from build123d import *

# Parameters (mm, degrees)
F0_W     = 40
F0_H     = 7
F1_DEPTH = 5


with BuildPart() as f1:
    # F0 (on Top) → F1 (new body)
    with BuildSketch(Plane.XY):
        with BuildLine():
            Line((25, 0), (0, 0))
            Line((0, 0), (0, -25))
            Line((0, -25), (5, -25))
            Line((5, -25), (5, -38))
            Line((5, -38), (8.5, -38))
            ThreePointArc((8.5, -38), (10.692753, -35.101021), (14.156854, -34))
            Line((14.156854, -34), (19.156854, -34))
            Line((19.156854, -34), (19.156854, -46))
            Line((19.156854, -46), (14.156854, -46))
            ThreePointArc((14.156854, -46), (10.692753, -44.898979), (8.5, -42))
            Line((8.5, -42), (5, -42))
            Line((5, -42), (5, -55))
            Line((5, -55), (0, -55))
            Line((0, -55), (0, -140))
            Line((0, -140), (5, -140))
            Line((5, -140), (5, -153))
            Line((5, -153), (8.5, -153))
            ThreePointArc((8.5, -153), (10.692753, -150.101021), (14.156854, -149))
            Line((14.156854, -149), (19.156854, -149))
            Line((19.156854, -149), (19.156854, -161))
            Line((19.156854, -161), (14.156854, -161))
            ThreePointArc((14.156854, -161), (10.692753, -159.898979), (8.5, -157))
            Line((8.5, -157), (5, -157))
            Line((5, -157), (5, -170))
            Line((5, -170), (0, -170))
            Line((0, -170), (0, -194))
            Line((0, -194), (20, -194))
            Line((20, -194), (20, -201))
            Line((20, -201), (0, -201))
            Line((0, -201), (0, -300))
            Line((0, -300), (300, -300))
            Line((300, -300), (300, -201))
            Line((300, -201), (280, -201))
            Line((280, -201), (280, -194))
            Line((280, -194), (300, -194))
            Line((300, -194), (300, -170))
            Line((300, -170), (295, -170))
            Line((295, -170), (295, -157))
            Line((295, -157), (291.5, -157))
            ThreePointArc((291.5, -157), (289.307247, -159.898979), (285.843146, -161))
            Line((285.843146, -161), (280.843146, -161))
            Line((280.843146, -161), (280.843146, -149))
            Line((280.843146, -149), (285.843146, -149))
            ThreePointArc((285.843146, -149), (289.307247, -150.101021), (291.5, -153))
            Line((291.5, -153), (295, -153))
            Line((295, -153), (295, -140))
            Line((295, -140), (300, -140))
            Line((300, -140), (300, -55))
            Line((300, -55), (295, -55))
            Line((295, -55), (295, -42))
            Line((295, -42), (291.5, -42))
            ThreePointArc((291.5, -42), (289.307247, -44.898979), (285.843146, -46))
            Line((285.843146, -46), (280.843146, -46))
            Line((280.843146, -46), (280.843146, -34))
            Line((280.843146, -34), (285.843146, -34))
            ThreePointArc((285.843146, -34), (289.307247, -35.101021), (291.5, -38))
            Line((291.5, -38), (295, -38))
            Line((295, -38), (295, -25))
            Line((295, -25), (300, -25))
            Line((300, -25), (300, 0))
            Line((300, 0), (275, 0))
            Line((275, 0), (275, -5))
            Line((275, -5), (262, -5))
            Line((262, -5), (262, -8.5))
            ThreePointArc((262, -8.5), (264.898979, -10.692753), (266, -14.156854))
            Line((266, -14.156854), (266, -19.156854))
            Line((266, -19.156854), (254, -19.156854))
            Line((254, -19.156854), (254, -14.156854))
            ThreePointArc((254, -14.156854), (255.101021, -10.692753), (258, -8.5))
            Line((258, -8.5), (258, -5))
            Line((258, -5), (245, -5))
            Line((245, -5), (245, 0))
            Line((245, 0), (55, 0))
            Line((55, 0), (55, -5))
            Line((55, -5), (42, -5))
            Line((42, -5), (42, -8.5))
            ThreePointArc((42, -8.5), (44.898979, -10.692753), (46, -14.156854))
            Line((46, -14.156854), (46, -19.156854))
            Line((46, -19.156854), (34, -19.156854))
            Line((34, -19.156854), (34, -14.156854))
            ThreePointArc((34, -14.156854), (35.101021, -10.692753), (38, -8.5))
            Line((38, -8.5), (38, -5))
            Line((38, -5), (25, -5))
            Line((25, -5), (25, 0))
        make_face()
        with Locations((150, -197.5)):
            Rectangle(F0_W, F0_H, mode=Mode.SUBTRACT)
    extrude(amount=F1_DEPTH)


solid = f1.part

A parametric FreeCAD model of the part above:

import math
import FreeCAD as App
import Part
import Sketcher
from FreeCAD import Vector


def add_polygon(sketch, points):
    """Adds a closed chain of lines whose ends are joined by coincident constraints."""
    first, n = sketch.GeometryCount, len(points)
    for a, b in zip(points, points[1:] + points[:1]):
        sketch.addGeometry(Part.LineSegment(App.Vector(*a, 0), App.Vector(*b, 0)), False)
    for i in range(n):
        sketch.addConstraint(Sketcher.Constraint("Coincident", first + i, 2, first + (i + 1) % n, 1))

doc = App.newDocument("Part")
body = doc.addObject("PartDesign::Body", "Body")

sketch1 = doc.addObject("Sketcher::SketchObject", "Sketch")
body.addObject(sketch1)
sketch1.AttachmentSupport = (doc.XY_Plane, [""])
sketch1.MapMode = "FlatFace"
sketch1.addGeometry(Part.LineSegment(Vector(25, 0, 0), Vector(0, 0, 0)), False)
sketch1.addGeometry(Part.LineSegment(Vector(0, 0, 0), Vector(0, -25, 0)), False)
sketch1.addGeometry(Part.LineSegment(Vector(0, -25, 0), Vector(5, -25, 0)), False)
sketch1.addGeometry(Part.LineSegment(Vector(5, -25, 0), Vector(5, -38, 0)), False)
sketch1.addGeometry(Part.LineSegment(Vector(5, -38, 0), Vector(8.5, -38, 0)), False)
sketch1.addGeometry(Part.ArcOfCircle(Part.Circle(Vector(14.156856, -40.000003, 0), Vector(0, 0, 1), 6.000003), math.radians(90.000021), math.radians(160.528761)), False)
sketch1.addGeometry(Part.LineSegment(Vector(14.156854, -34, 0), Vector(19.156854, -34, 0)), False)
sketch1.addGeometry(Part.LineSegment(Vector(19.156854, -34, 0), Vector(19.156854, -46, 0)), False)
sketch1.addGeometry(Part.LineSegment(Vector(19.156854, -46, 0), Vector(14.156854, -46, 0)), False)
sketch1.addGeometry(Part.ArcOfCircle(Part.Circle(Vector(14.156856, -39.999997, 0), Vector(0, 0, 1), 6.000003), math.radians(-160.528761), math.radians(-90.000021)), False)
sketch1.addGeometry(Part.LineSegment(Vector(8.5, -42, 0), Vector(5, -42, 0)), False)
sketch1.addGeometry(Part.LineSegment(Vector(5, -42, 0), Vector(5, -55, 0)), False)
sketch1.addGeometry(Part.LineSegment(Vector(5, -55, 0), Vector(0, -55, 0)), False)
sketch1.addGeometry(Part.LineSegment(Vector(0, -55, 0), Vector(0, -140, 0)), False)
sketch1.addGeometry(Part.LineSegment(Vector(0, -140, 0), Vector(5, -140, 0)), False)
sketch1.addGeometry(Part.LineSegment(Vector(5, -140, 0), Vector(5, -153, 0)), False)
sketch1.addGeometry(Part.LineSegment(Vector(5, -153, 0), Vector(8.5, -153, 0)), False)
sketch1.addGeometry(Part.ArcOfCircle(Part.Circle(Vector(14.156856, -155.000003, 0), Vector(0, 0, 1), 6.000003), math.radians(90.000021), math.radians(160.528761)), False)
sketch1.addGeometry(Part.LineSegment(Vector(14.156854, -149, 0), Vector(19.156854, -149, 0)), False)
sketch1.addGeometry(Part.LineSegment(Vector(19.156854, -149, 0), Vector(19.156854, -161, 0)), False)
sketch1.addGeometry(Part.LineSegment(Vector(19.156854, -161, 0), Vector(14.156854, -161, 0)), False)
sketch1.addGeometry(Part.ArcOfCircle(Part.Circle(Vector(14.156856, -154.999997, 0), Vector(0, 0, 1), 6.000003), math.radians(-160.528761), math.radians(-90.000021)), False)
sketch1.addGeometry(Part.LineSegment(Vector(8.5, -157, 0), Vector(5, -157, 0)), False)
sketch1.addGeometry(Part.LineSegment(Vector(5, -157, 0), Vector(5, -170, 0)), False)
sketch1.addGeometry(Part.LineSegment(Vector(5, -170, 0), Vector(0, -170, 0)), False)
sketch1.addGeometry(Part.LineSegment(Vector(0, -170, 0), Vector(0, -194, 0)), False)
sketch1.addGeometry(Part.LineSegment(Vector(0, -194, 0), Vector(20, -194, 0)), False)
sketch1.addGeometry(Part.LineSegment(Vector(20, -194, 0), Vector(20, -201, 0)), False)
sketch1.addGeometry(Part.LineSegment(Vector(20, -201, 0), Vector(0, -201, 0)), False)
sketch1.addGeometry(Part.LineSegment(Vector(0, -201, 0), Vector(0, -300, 0)), False)
sketch1.addGeometry(Part.LineSegment(Vector(0, -300, 0), Vector(300, -300, 0)), False)
sketch1.addGeometry(Part.LineSegment(Vector(300, -300, 0), Vector(300, -201, 0)), False)
sketch1.addGeometry(Part.LineSegment(Vector(300, -201, 0), Vector(280, -201, 0)), False)
sketch1.addGeometry(Part.LineSegment(Vector(280, -201, 0), Vector(280, -194, 0)), False)
sketch1.addGeometry(Part.LineSegment(Vector(280, -194, 0), Vector(300, -194, 0)), False)
sketch1.addGeometry(Part.LineSegment(Vector(300, -194, 0), Vector(300, -170, 0)), False)
sketch1.addGeometry(Part.LineSegment(Vector(300, -170, 0), Vector(295, -170, 0)), False)
sketch1.addGeometry(Part.LineSegment(Vector(295, -170, 0), Vector(295, -157, 0)), False)
sketch1.addGeometry(Part.LineSegment(Vector(295, -157, 0), Vector(291.5, -157, 0)), False)
sketch1.addGeometry(Part.ArcOfCircle(Part.Circle(Vector(285.843144, -154.999997, 0), Vector(0, 0, 1), 6.000003), math.radians(-89.999979), math.radians(-19.471239)), False)
sketch1.addGeometry(Part.LineSegment(Vector(285.843146, -161, 0), Vector(280.843146, -161, 0)), False)
sketch1.addGeometry(Part.LineSegment(Vector(280.843146, -161, 0), Vector(280.843146, -149, 0)), False)
sketch1.addGeometry(Part.LineSegment(Vector(280.843146, -149, 0), Vector(285.843146, -149, 0)), False)
sketch1.addGeometry(Part.ArcOfCircle(Part.Circle(Vector(285.843144, -155.000003, 0), Vector(0, 0, 1), 6.000003), math.radians(19.471239), math.radians(89.999979)), False)
sketch1.addGeometry(Part.LineSegment(Vector(291.5, -153, 0), Vector(295, -153, 0)), False)
sketch1.addGeometry(Part.LineSegment(Vector(295, -153, 0), Vector(295, -140, 0)), False)
sketch1.addGeometry(Part.LineSegment(Vector(295, -140, 0), Vector(300, -140, 0)), False)
sketch1.addGeometry(Part.LineSegment(Vector(300, -140, 0), Vector(300, -55, 0)), False)
sketch1.addGeometry(Part.LineSegment(Vector(300, -55, 0), Vector(295, -55, 0)), False)
sketch1.addGeometry(Part.LineSegment(Vector(295, -55, 0), Vector(295, -42, 0)), False)
sketch1.addGeometry(Part.LineSegment(Vector(295, -42, 0), Vector(291.5, -42, 0)), False)
sketch1.addGeometry(Part.ArcOfCircle(Part.Circle(Vector(285.843144, -39.999997, 0), Vector(0, 0, 1), 6.000003), math.radians(-89.999979), math.radians(-19.471239)), False)
sketch1.addGeometry(Part.LineSegment(Vector(285.843146, -46, 0), Vector(280.843146, -46, 0)), False)
sketch1.addGeometry(Part.LineSegment(Vector(280.843146, -46, 0), Vector(280.843146, -34, 0)), False)
sketch1.addGeometry(Part.LineSegment(Vector(280.843146, -34, 0), Vector(285.843146, -34, 0)), False)
sketch1.addGeometry(Part.ArcOfCircle(Part.Circle(Vector(285.843144, -40.000003, 0), Vector(0, 0, 1), 6.000003), math.radians(19.471239), math.radians(89.999979)), False)
sketch1.addGeometry(Part.LineSegment(Vector(291.5, -38, 0), Vector(295, -38, 0)), False)
sketch1.addGeometry(Part.LineSegment(Vector(295, -38, 0), Vector(295, -25, 0)), False)
sketch1.addGeometry(Part.LineSegment(Vector(295, -25, 0), Vector(300, -25, 0)), False)
sketch1.addGeometry(Part.LineSegment(Vector(300, -25, 0), Vector(300, 0, 0)), False)
sketch1.addGeometry(Part.LineSegment(Vector(300, 0, 0), Vector(275, 0, 0)), False)
sketch1.addGeometry(Part.LineSegment(Vector(275, 0, 0), Vector(275, -5, 0)), False)
sketch1.addGeometry(Part.LineSegment(Vector(275, -5, 0), Vector(262, -5, 0)), False)
sketch1.addGeometry(Part.LineSegment(Vector(262, -5, 0), Vector(262, -8.5, 0)), False)
sketch1.addGeometry(Part.ArcOfCircle(Part.Circle(Vector(259.999997, -14.156856, 0), Vector(0, 0, 1), 6.000003), math.radians(0.000021), math.radians(70.528761)), False)
sketch1.addGeometry(Part.LineSegment(Vector(266, -14.156854, 0), Vector(266, -19.156854, 0)), False)
sketch1.addGeometry(Part.LineSegment(Vector(266, -19.156854, 0), Vector(254, -19.156854, 0)), False)
sketch1.addGeometry(Part.LineSegment(Vector(254, -19.156854, 0), Vector(254, -14.156854, 0)), False)
sketch1.addGeometry(Part.ArcOfCircle(Part.Circle(Vector(260.000003, -14.156856, 0), Vector(0, 0, 1), 6.000003), math.radians(109.471239), math.radians(179.999979)), False)
sketch1.addGeometry(Part.LineSegment(Vector(258, -8.5, 0), Vector(258, -5, 0)), False)
sketch1.addGeometry(Part.LineSegment(Vector(258, -5, 0), Vector(245, -5, 0)), False)
sketch1.addGeometry(Part.LineSegment(Vector(245, -5, 0), Vector(245, 0, 0)), False)
sketch1.addGeometry(Part.LineSegment(Vector(245, 0, 0), Vector(55, 0, 0)), False)
sketch1.addGeometry(Part.LineSegment(Vector(55, 0, 0), Vector(55, -5, 0)), False)
sketch1.addGeometry(Part.LineSegment(Vector(55, -5, 0), Vector(42, -5, 0)), False)
sketch1.addGeometry(Part.LineSegment(Vector(42, -5, 0), Vector(42, -8.5, 0)), False)
sketch1.addGeometry(Part.ArcOfCircle(Part.Circle(Vector(39.999997, -14.156856, 0), Vector(0, 0, 1), 6.000003), math.radians(0.000021), math.radians(70.528761)), False)
sketch1.addGeometry(Part.LineSegment(Vector(46, -14.156854, 0), Vector(46, -19.156854, 0)), False)
sketch1.addGeometry(Part.LineSegment(Vector(46, -19.156854, 0), Vector(34, -19.156854, 0)), False)
sketch1.addGeometry(Part.LineSegment(Vector(34, -19.156854, 0), Vector(34, -14.156854, 0)), False)
sketch1.addGeometry(Part.ArcOfCircle(Part.Circle(Vector(40.000003, -14.156856, 0), Vector(0, 0, 1), 6.000003), math.radians(109.471239), math.radians(179.999979)), False)
sketch1.addGeometry(Part.LineSegment(Vector(38, -8.5, 0), Vector(38, -5, 0)), False)
sketch1.addGeometry(Part.LineSegment(Vector(38, -5, 0), Vector(25, -5, 0)), False)
sketch1.addGeometry(Part.LineSegment(Vector(25, -5, 0), Vector(25, 0, 0)), False)
add_polygon(sketch1, [(170, -201), (130, -201), (130, -194), (170, -194)])
sketch1.addConstraint(Sketcher.Constraint("Coincident", 0, 2, 1, 1))
sketch1.addConstraint(Sketcher.Constraint("Coincident", 1, 2, 2, 1))
sketch1.addConstraint(Sketcher.Constraint("Coincident", 2, 2, 3, 1))
sketch1.addConstraint(Sketcher.Constraint("Coincident", 3, 2, 4, 1))
sketch1.addConstraint(Sketcher.Constraint("Coincident", 4, 2, 5, 2))
sketch1.addConstraint(Sketcher.Constraint("Tangent", 5, 1, 6, 1))
sketch1.addConstraint(Sketcher.Constraint("Coincident", 6, 2, 7, 1))
sketch1.addConstraint(Sketcher.Constraint("Coincident", 7, 2, 8, 1))
sketch1.addConstraint(Sketcher.Constraint("Tangent", 8, 2, 9, 2))
sketch1.addConstraint(Sketcher.Constraint("Coincident", 9, 1, 10, 1))
sketch1.addConstraint(Sketcher.Constraint("Coincident", 10, 2, 11, 1))
sketch1.addConstraint(Sketcher.Constraint("Coincident", 11, 2, 12, 1))
sketch1.addConstraint(Sketcher.Constraint("Coincident", 12, 2, 13, 1))
sketch1.addConstraint(Sketcher.Constraint("Coincident", 13, 2, 14, 1))
sketch1.addConstraint(Sketcher.Constraint("Coincident", 14, 2, 15, 1))
sketch1.addConstraint(Sketcher.Constraint("Coincident", 15, 2, 16, 1))
sketch1.addConstraint(Sketcher.Constraint("Coincident", 16, 2, 17, 2))
sketch1.addConstraint(Sketcher.Constraint("Tangent", 17, 1, 18, 1))
sketch1.addConstraint(Sketcher.Constraint("Coincident", 18, 2, 19, 1))
sketch1.addConstraint(Sketcher.Constraint("Coincident", 19, 2, 20, 1))
sketch1.addConstraint(Sketcher.Constraint("Tangent", 20, 2, 21, 2))
sketch1.addConstraint(Sketcher.Constraint("Coincident", 21, 1, 22, 1))
sketch1.addConstraint(Sketcher.Constraint("Coincident", 22, 2, 23, 1))
sketch1.addConstraint(Sketcher.Constraint("Coincident", 23, 2, 24, 1))
sketch1.addConstraint(Sketcher.Constraint("Coincident", 24, 2, 25, 1))
sketch1.addConstraint(Sketcher.Constraint("Coincident", 25, 2, 26, 1))
sketch1.addConstraint(Sketcher.Constraint("Coincident", 26, 2, 27, 1))
sketch1.addConstraint(Sketcher.Constraint("Coincident", 27, 2, 28, 1))
sketch1.addConstraint(Sketcher.Constraint("Coincident", 28, 2, 29, 1))
sketch1.addConstraint(Sketcher.Constraint("Coincident", 29, 2, 30, 1))
sketch1.addConstraint(Sketcher.Constraint("Coincident", 30, 2, 31, 1))
sketch1.addConstraint(Sketcher.Constraint("Coincident", 31, 2, 32, 1))
sketch1.addConstraint(Sketcher.Constraint("Coincident", 32, 2, 33, 1))
sketch1.addConstraint(Sketcher.Constraint("Coincident", 33, 2, 34, 1))
sketch1.addConstraint(Sketcher.Constraint("Coincident", 34, 2, 35, 1))
sketch1.addConstraint(Sketcher.Constraint("Coincident", 35, 2, 36, 1))
sketch1.addConstraint(Sketcher.Constraint("Coincident", 36, 2, 37, 1))
sketch1.addConstraint(Sketcher.Constraint("Coincident", 37, 2, 38, 1))
sketch1.addConstraint(Sketcher.Constraint("Coincident", 38, 2, 39, 2))
sketch1.addConstraint(Sketcher.Constraint("Tangent", 39, 1, 40, 1))
sketch1.addConstraint(Sketcher.Constraint("Coincident", 40, 2, 41, 1))
sketch1.addConstraint(Sketcher.Constraint("Coincident", 41, 2, 42, 1))
sketch1.addConstraint(Sketcher.Constraint("Tangent", 42, 2, 43, 2))
sketch1.addConstraint(Sketcher.Constraint("Coincident", 43, 1, 44, 1))
sketch1.addConstraint(Sketcher.Constraint("Coincident", 44, 2, 45, 1))
sketch1.addConstraint(Sketcher.Constraint("Coincident", 45, 2, 46, 1))
sketch1.addConstraint(Sketcher.Constraint("Coincident", 46, 2, 47, 1))
sketch1.addConstraint(Sketcher.Constraint("Coincident", 47, 2, 48, 1))
sketch1.addConstraint(Sketcher.Constraint("Coincident", 48, 2, 49, 1))
sketch1.addConstraint(Sketcher.Constraint("Coincident", 49, 2, 50, 1))
sketch1.addConstraint(Sketcher.Constraint("Coincident", 50, 2, 51, 2))
sketch1.addConstraint(Sketcher.Constraint("Tangent", 51, 1, 52, 1))
sketch1.addConstraint(Sketcher.Constraint("Coincident", 52, 2, 53, 1))
sketch1.addConstraint(Sketcher.Constraint("Coincident", 53, 2, 54, 1))
sketch1.addConstraint(Sketcher.Constraint("Tangent", 54, 2, 55, 2))
sketch1.addConstraint(Sketcher.Constraint("Coincident", 55, 1, 56, 1))
sketch1.addConstraint(Sketcher.Constraint("Coincident", 56, 2, 57, 1))
sketch1.addConstraint(Sketcher.Constraint("Coincident", 57, 2, 58, 1))
sketch1.addConstraint(Sketcher.Constraint("Coincident", 58, 2, 59, 1))
sketch1.addConstraint(Sketcher.Constraint("Coincident", 59, 2, 60, 1))
sketch1.addConstraint(Sketcher.Constraint("Coincident", 60, 2, 61, 1))
sketch1.addConstraint(Sketcher.Constraint("Coincident", 61, 2, 62, 1))
sketch1.addConstraint(Sketcher.Constraint("Coincident", 62, 2, 63, 1))
sketch1.addConstraint(Sketcher.Constraint("Coincident", 63, 2, 64, 2))
sketch1.addConstraint(Sketcher.Constraint("Tangent", 64, 1, 65, 1))
sketch1.addConstraint(Sketcher.Constraint("Coincident", 65, 2, 66, 1))
sketch1.addConstraint(Sketcher.Constraint("Coincident", 66, 2, 67, 1))
sketch1.addConstraint(Sketcher.Constraint("Tangent", 67, 2, 68, 2))
sketch1.addConstraint(Sketcher.Constraint("Coincident", 68, 1, 69, 1))
sketch1.addConstraint(Sketcher.Constraint("Coincident", 69, 2, 70, 1))
sketch1.addConstraint(Sketcher.Constraint("Coincident", 70, 2, 71, 1))
sketch1.addConstraint(Sketcher.Constraint("Coincident", 71, 2, 72, 1))
sketch1.addConstraint(Sketcher.Constraint("Coincident", 72, 2, 73, 1))
sketch1.addConstraint(Sketcher.Constraint("Coincident", 73, 2, 74, 1))
sketch1.addConstraint(Sketcher.Constraint("Coincident", 74, 2, 75, 1))
sketch1.addConstraint(Sketcher.Constraint("Coincident", 75, 2, 76, 2))
sketch1.addConstraint(Sketcher.Constraint("Tangent", 76, 1, 77, 1))
sketch1.addConstraint(Sketcher.Constraint("Coincident", 77, 2, 78, 1))
sketch1.addConstraint(Sketcher.Constraint("Coincident", 78, 2, 79, 1))
sketch1.addConstraint(Sketcher.Constraint("Tangent", 79, 2, 80, 2))
sketch1.addConstraint(Sketcher.Constraint("Coincident", 80, 1, 81, 1))
sketch1.addConstraint(Sketcher.Constraint("Coincident", 81, 2, 82, 1))
sketch1.addConstraint(Sketcher.Constraint("Coincident", 82, 2, 83, 1))
sketch1.addConstraint(Sketcher.Constraint("Coincident", 83, 2, 0, 1))
sketch1.addConstraint(Sketcher.Constraint("Horizontal", 0))
sketch1.addConstraint(Sketcher.Constraint("Vertical", 1))
sketch1.addConstraint(Sketcher.Constraint("Horizontal", 2))
sketch1.addConstraint(Sketcher.Constraint("Vertical", 3))
sketch1.addConstraint(Sketcher.Constraint("Horizontal", 4))
sketch1.addConstraint(Sketcher.Constraint("Horizontal", 6))
sketch1.addConstraint(Sketcher.Constraint("Vertical", 7))
sketch1.addConstraint(Sketcher.Constraint("Horizontal", 8))
sketch1.addConstraint(Sketcher.Constraint("Horizontal", 10))
sketch1.addConstraint(Sketcher.Constraint("Vertical", 11))
sketch1.addConstraint(Sketcher.Constraint("Horizontal", 12))
sketch1.addConstraint(Sketcher.Constraint("Vertical", 13))
sketch1.addConstraint(Sketcher.Constraint("Horizontal", 14))
sketch1.addConstraint(Sketcher.Constraint("Vertical", 15))
sketch1.addConstraint(Sketcher.Constraint("Horizontal", 16))
sketch1.addConstraint(Sketcher.Constraint("Horizontal", 18))
sketch1.addConstraint(Sketcher.Constraint("Vertical", 19))
sketch1.addConstraint(Sketcher.Constraint("Horizontal", 20))
sketch1.addConstraint(Sketcher.Constraint("Horizontal", 22))
sketch1.addConstraint(Sketcher.Constraint("Vertical", 23))
sketch1.addConstraint(Sketcher.Constraint("Horizontal", 24))
sketch1.addConstraint(Sketcher.Constraint("Vertical", 25))
sketch1.addConstraint(Sketcher.Constraint("Horizontal", 26))
sketch1.addConstraint(Sketcher.Constraint("Vertical", 27))
sketch1.addConstraint(Sketcher.Constraint("Horizontal", 28))
sketch1.addConstraint(Sketcher.Constraint("Vertical", 29))
sketch1.addConstraint(Sketcher.Constraint("Horizontal", 30))
sketch1.addConstraint(Sketcher.Constraint("Vertical", 31))
sketch1.addConstraint(Sketcher.Constraint("Horizontal", 32))
sketch1.addConstraint(Sketcher.Constraint("Vertical", 33))
sketch1.addConstraint(Sketcher.Constraint("Horizontal", 34))
sketch1.addConstraint(Sketcher.Constraint("Vertical", 35))
sketch1.addConstraint(Sketcher.Constraint("Horizontal", 36))
sketch1.addConstraint(Sketcher.Constraint("Vertical", 37))
sketch1.addConstraint(Sketcher.Constraint("Horizontal", 38))
sketch1.addConstraint(Sketcher.Constraint("Horizontal", 40))
sketch1.addConstraint(Sketcher.Constraint("Vertical", 41))
sketch1.addConstraint(Sketcher.Constraint("Horizontal", 42))
sketch1.addConstraint(Sketcher.Constraint("Horizontal", 44))
sketch1.addConstraint(Sketcher.Constraint("Vertical", 45))
sketch1.addConstraint(Sketcher.Constraint("Horizontal", 46))
sketch1.addConstraint(Sketcher.Constraint("Vertical", 47))
sketch1.addConstraint(Sketcher.Constraint("Horizontal", 48))
sketch1.addConstraint(Sketcher.Constraint("Vertical", 49))
sketch1.addConstraint(Sketcher.Constraint("Horizontal", 50))
sketch1.addConstraint(Sketcher.Constraint("Horizontal", 52))
sketch1.addConstraint(Sketcher.Constraint("Vertical", 53))
sketch1.addConstraint(Sketcher.Constraint("Horizontal", 54))
sketch1.addConstraint(Sketcher.Constraint("Horizontal", 56))
sketch1.addConstraint(Sketcher.Constraint("Vertical", 57))
sketch1.addConstraint(Sketcher.Constraint("Horizontal", 58))
sketch1.addConstraint(Sketcher.Constraint("Vertical", 59))
sketch1.addConstraint(Sketcher.Constraint("Horizontal", 60))
sketch1.addConstraint(Sketcher.Constraint("Vertical", 61))
sketch1.addConstraint(Sketcher.Constraint("Horizontal", 62))
sketch1.addConstraint(Sketcher.Constraint("Vertical", 63))
sketch1.addConstraint(Sketcher.Constraint("Vertical", 65))
sketch1.addConstraint(Sketcher.Constraint("Horizontal", 66))
sketch1.addConstraint(Sketcher.Constraint("Vertical", 67))
sketch1.addConstraint(Sketcher.Constraint("Vertical", 69))
sketch1.addConstraint(Sketcher.Constraint("Horizontal", 70))
sketch1.addConstraint(Sketcher.Constraint("Vertical", 71))
sketch1.addConstraint(Sketcher.Constraint("Horizontal", 72))
sketch1.addConstraint(Sketcher.Constraint("Vertical", 73))
sketch1.addConstraint(Sketcher.Constraint("Horizontal", 74))
sketch1.addConstraint(Sketcher.Constraint("Vertical", 75))
sketch1.addConstraint(Sketcher.Constraint("Vertical", 77))
sketch1.addConstraint(Sketcher.Constraint("Horizontal", 78))
sketch1.addConstraint(Sketcher.Constraint("Vertical", 79))
sketch1.addConstraint(Sketcher.Constraint("Vertical", 81))
sketch1.addConstraint(Sketcher.Constraint("Horizontal", 82))
sketch1.addConstraint(Sketcher.Constraint("Vertical", 83))
sketch1.addConstraint(Sketcher.Constraint("Horizontal", 84))
sketch1.addConstraint(Sketcher.Constraint("Vertical", 85))
sketch1.addConstraint(Sketcher.Constraint("Horizontal", 86))
sketch1.addConstraint(Sketcher.Constraint("Vertical", 87))
sketch1.addConstraint(Sketcher.Constraint("Coincident", 0, 2, -1, 1))
sketch1.addConstraint(Sketcher.Constraint("Coincident", 9, 3, 5, 3))
sketch1.addConstraint(Sketcher.Constraint("Coincident", 21, 3, 17, 3))
sketch1.addConstraint(Sketcher.Constraint("Coincident", 43, 3, 39, 3))
sketch1.addConstraint(Sketcher.Constraint("Coincident", 55, 3, 51, 3))
sketch1.addConstraint(Sketcher.Constraint("Coincident", 68, 3, 64, 3))
sketch1.addConstraint(Sketcher.Constraint("Coincident", 80, 3, 76, 3))
sketch1.addConstraint(Sketcher.Constraint("Equal", 5, 9))
sketch1.addConstraint(Sketcher.Constraint("Equal", 9, 17))
sketch1.addConstraint(Sketcher.Constraint("Equal", 17, 21))
sketch1.addConstraint(Sketcher.Constraint("Equal", 21, 39))
sketch1.addConstraint(Sketcher.Constraint("Equal", 39, 43))
sketch1.addConstraint(Sketcher.Constraint("Equal", 43, 51))
sketch1.addConstraint(Sketcher.Constraint("Equal", 51, 55))
sketch1.addConstraint(Sketcher.Constraint("Equal", 55, 64))
sketch1.addConstraint(Sketcher.Constraint("Equal", 64, 68))
sketch1.addConstraint(Sketcher.Constraint("Equal", 68, 76))
sketch1.addConstraint(Sketcher.Constraint("Equal", 76, 80))
sketch1.addConstraint(Sketcher.Constraint("PointOnObject", 12, 2, -2))
sketch1.addConstraint(Sketcher.Constraint("PointOnObject", 24, 2, -2))
sketch1.addConstraint(Sketcher.Constraint("PointOnObject", 28, 2, -2))
sketch1.addConstraint(Sketcher.Constraint("PointOnObject", 59, 2, -1))
sketch1.addConstraint(Sketcher.Constraint("PointOnObject", 71, 2, -1))
sketch1.addConstraint(Sketcher.Constraint("Horizontal", 21, 3, 39, 3))
sketch1.addConstraint(Sketcher.Constraint("Horizontal", 9, 3, 51, 3))
sketch1.addConstraint(Sketcher.Constraint("Horizontal", 68, 3, 76, 3))
sketch1.addConstraint(Sketcher.Constraint("Horizontal", 28, 2, 31, 2))
sketch1.addConstraint(Sketcher.Constraint("Horizontal", 26, 2, 33, 2))
sketch1.addConstraint(Sketcher.Constraint("Horizontal", 24, 2, 35, 2))
sketch1.addConstraint(Sketcher.Constraint("Horizontal", 22, 2, 37, 2))
sketch1.addConstraint(Sketcher.Constraint("Horizontal", 16, 2, 43, 1))
sketch1.addConstraint(Sketcher.Constraint("Horizontal", 14, 2, 45, 2))
sketch1.addConstraint(Sketcher.Constraint("Horizontal", 12, 2, 47, 2))
sketch1.addConstraint(Sketcher.Constraint("Horizontal", 10, 2, 49, 2))
sketch1.addConstraint(Sketcher.Constraint("Horizontal", 4, 2, 55, 1))
sketch1.addConstraint(Sketcher.Constraint("Horizontal", 2, 2, 57, 2))
sketch1.addConstraint(Sketcher.Constraint("Horizontal", 63, 2, 68, 1))
sketch1.addConstraint(Sketcher.Constraint("Horizontal", 62, 2, 69, 2))
sketch1.addConstraint(Sketcher.Constraint("Horizontal", 70, 2, 73, 2))
sketch1.addConstraint(Sketcher.Constraint("Horizontal", 68, 1, 75, 2))
sketch1.addConstraint(Sketcher.Constraint("Horizontal", 66, 2, 77, 2))
sketch1.addConstraint(Sketcher.Constraint("Horizontal", 75, 2, 80, 1))
sketch1.addConstraint(Sketcher.Constraint("Horizontal", 74, 2, 81, 2))
sketch1.addConstraint(Sketcher.Constraint("Horizontal", 32, 2, 84, 2))
sketch1.addConstraint(Sketcher.Constraint("Horizontal", 34, 2, 85, 2))
sketch1.addConstraint(Sketcher.Constraint("Vertical", 9, 3, 17, 3))
sketch1.addConstraint(Sketcher.Constraint("Vertical", 43, 3, 51, 3))
sketch1.addConstraint(Sketcher.Constraint("Vertical", 4, 2, 9, 1))
sketch1.addConstraint(Sketcher.Constraint("Vertical", 3, 2, 10, 2))
sketch1.addConstraint(Sketcher.Constraint("Vertical", 11, 2, 14, 2))
sketch1.addConstraint(Sketcher.Constraint("Vertical", 9, 1, 16, 2))
sketch1.addConstraint(Sketcher.Constraint("Vertical", 7, 2, 18, 2))
sketch1.addConstraint(Sketcher.Constraint("Vertical", 16, 2, 21, 1))
sketch1.addConstraint(Sketcher.Constraint("Vertical", 15, 2, 22, 2))
sketch1.addConstraint(Sketcher.Constraint("Vertical", 31, 2, 34, 2))
sketch1.addConstraint(Sketcher.Constraint("Vertical", 37, 2, 44, 2))
sketch1.addConstraint(Sketcher.Constraint("Vertical", 35, 2, 46, 2))
sketch1.addConstraint(Sketcher.Constraint("Vertical", 45, 2, 48, 2))
sketch1.addConstraint(Sketcher.Constraint("Vertical", 41, 2, 52, 2))
sketch1.addConstraint(Sketcher.Constraint("Vertical", 49, 2, 56, 2))
sketch1.addConstraint(Sketcher.Constraint("Vertical", 47, 2, 58, 2))
sketch1.addConstraint(Sketcher.Constraint("Equal", 2, 6))
sketch1.addConstraint(Sketcher.Constraint("Equal", 28, 32))
sketch1.addConstraint(Sketcher.Constraint("Equal", 24, 36))
sketch1.addConstraint(Sketcher.Constraint("Equal", 22, 38))
sketch1.addConstraint(Sketcher.Constraint("Equal", 36, 40))
sketch1.addConstraint(Sketcher.Constraint("Equal", 0, 60))
sketch1.addConstraint(Sketcher.Constraint("Equal", 62, 70))
sketch1.addConstraint(Sketcher.Constraint("Equal", 70, 74))
sketch1.addConstraint(Sketcher.Constraint("Equal", 74, 82))
sketch1.addConstraint(Sketcher.Constraint("Equal", 60, 1))
sketch1.addConstraint(Sketcher.Constraint("Equal", 82, 3))
sketch1.addConstraint(Sketcher.Constraint("Equal", 3, 11))
sketch1.addConstraint(Sketcher.Constraint("Equal", 11, 15))
sketch1.addConstraint(Sketcher.Constraint("Equal", 15, 23))
sketch1.addConstraint(Sketcher.Constraint("Equal", 58, 61))
sketch1.addConstraint(Sketcher.Constraint("Equal", 56, 63))
sketch1.addConstraint(Sketcher.Constraint("Equal", 61, 65))
sketch1.addConstraint(Sketcher.Constraint("DistanceX", 0, 2, 0, 1, 25.0))
sketch1.addConstraint(Sketcher.Constraint("DistanceX", 2, 1, 2, 2, 5.0))
sketch1.addConstraint(Sketcher.Constraint("DistanceX", 26, 1, 26, 2, 20.0))
sketch1.addConstraint(Sketcher.Constraint("DistanceX", 30, 1, 30, 2, 300.0))
sketch1.addConstraint(Sketcher.Constraint("DistanceX", 62, 2, 62, 1, 13.0))
sketch1.addConstraint(Sketcher.Constraint("DistanceX", 66, 2, 66, 1, 12.0))
sketch1.addConstraint(Sketcher.Constraint("DistanceX", 72, 2, 72, 1, 190.0))
sketch1.addConstraint(Sketcher.Constraint("DistanceX", 84, 2, 84, 1, 40.0))
sketch1.addConstraint(Sketcher.Constraint("DistanceY", 13, 2, 13, 1, 85.0))
sketch1.addConstraint(Sketcher.Constraint("DistanceY", 25, 2, 25, 1, 24.0))
sketch1.addConstraint(Sketcher.Constraint("DistanceY", 27, 2, 27, 1, 7.0))
sketch1.addConstraint(Sketcher.Constraint("DistanceY", 29, 2, 29, 1, 99.0))
sketch1.addConstraint(Sketcher.Constraint("DistanceX", 4, 1, 4, 2, 3.5))
sketch1.addConstraint(Sketcher.Constraint("DistanceY", 5, 1, -1, 1, 34.0))
sketch1.addConstraint(Sketcher.Constraint("DistanceX", -1, 1, 84, 2, 130.0))
pad1 = doc.addObject("PartDesign::Pad", "Pad")
body.addObject(pad1)
pad1.Profile = sketch1
pad1.Length = 5

doc.recompute()
